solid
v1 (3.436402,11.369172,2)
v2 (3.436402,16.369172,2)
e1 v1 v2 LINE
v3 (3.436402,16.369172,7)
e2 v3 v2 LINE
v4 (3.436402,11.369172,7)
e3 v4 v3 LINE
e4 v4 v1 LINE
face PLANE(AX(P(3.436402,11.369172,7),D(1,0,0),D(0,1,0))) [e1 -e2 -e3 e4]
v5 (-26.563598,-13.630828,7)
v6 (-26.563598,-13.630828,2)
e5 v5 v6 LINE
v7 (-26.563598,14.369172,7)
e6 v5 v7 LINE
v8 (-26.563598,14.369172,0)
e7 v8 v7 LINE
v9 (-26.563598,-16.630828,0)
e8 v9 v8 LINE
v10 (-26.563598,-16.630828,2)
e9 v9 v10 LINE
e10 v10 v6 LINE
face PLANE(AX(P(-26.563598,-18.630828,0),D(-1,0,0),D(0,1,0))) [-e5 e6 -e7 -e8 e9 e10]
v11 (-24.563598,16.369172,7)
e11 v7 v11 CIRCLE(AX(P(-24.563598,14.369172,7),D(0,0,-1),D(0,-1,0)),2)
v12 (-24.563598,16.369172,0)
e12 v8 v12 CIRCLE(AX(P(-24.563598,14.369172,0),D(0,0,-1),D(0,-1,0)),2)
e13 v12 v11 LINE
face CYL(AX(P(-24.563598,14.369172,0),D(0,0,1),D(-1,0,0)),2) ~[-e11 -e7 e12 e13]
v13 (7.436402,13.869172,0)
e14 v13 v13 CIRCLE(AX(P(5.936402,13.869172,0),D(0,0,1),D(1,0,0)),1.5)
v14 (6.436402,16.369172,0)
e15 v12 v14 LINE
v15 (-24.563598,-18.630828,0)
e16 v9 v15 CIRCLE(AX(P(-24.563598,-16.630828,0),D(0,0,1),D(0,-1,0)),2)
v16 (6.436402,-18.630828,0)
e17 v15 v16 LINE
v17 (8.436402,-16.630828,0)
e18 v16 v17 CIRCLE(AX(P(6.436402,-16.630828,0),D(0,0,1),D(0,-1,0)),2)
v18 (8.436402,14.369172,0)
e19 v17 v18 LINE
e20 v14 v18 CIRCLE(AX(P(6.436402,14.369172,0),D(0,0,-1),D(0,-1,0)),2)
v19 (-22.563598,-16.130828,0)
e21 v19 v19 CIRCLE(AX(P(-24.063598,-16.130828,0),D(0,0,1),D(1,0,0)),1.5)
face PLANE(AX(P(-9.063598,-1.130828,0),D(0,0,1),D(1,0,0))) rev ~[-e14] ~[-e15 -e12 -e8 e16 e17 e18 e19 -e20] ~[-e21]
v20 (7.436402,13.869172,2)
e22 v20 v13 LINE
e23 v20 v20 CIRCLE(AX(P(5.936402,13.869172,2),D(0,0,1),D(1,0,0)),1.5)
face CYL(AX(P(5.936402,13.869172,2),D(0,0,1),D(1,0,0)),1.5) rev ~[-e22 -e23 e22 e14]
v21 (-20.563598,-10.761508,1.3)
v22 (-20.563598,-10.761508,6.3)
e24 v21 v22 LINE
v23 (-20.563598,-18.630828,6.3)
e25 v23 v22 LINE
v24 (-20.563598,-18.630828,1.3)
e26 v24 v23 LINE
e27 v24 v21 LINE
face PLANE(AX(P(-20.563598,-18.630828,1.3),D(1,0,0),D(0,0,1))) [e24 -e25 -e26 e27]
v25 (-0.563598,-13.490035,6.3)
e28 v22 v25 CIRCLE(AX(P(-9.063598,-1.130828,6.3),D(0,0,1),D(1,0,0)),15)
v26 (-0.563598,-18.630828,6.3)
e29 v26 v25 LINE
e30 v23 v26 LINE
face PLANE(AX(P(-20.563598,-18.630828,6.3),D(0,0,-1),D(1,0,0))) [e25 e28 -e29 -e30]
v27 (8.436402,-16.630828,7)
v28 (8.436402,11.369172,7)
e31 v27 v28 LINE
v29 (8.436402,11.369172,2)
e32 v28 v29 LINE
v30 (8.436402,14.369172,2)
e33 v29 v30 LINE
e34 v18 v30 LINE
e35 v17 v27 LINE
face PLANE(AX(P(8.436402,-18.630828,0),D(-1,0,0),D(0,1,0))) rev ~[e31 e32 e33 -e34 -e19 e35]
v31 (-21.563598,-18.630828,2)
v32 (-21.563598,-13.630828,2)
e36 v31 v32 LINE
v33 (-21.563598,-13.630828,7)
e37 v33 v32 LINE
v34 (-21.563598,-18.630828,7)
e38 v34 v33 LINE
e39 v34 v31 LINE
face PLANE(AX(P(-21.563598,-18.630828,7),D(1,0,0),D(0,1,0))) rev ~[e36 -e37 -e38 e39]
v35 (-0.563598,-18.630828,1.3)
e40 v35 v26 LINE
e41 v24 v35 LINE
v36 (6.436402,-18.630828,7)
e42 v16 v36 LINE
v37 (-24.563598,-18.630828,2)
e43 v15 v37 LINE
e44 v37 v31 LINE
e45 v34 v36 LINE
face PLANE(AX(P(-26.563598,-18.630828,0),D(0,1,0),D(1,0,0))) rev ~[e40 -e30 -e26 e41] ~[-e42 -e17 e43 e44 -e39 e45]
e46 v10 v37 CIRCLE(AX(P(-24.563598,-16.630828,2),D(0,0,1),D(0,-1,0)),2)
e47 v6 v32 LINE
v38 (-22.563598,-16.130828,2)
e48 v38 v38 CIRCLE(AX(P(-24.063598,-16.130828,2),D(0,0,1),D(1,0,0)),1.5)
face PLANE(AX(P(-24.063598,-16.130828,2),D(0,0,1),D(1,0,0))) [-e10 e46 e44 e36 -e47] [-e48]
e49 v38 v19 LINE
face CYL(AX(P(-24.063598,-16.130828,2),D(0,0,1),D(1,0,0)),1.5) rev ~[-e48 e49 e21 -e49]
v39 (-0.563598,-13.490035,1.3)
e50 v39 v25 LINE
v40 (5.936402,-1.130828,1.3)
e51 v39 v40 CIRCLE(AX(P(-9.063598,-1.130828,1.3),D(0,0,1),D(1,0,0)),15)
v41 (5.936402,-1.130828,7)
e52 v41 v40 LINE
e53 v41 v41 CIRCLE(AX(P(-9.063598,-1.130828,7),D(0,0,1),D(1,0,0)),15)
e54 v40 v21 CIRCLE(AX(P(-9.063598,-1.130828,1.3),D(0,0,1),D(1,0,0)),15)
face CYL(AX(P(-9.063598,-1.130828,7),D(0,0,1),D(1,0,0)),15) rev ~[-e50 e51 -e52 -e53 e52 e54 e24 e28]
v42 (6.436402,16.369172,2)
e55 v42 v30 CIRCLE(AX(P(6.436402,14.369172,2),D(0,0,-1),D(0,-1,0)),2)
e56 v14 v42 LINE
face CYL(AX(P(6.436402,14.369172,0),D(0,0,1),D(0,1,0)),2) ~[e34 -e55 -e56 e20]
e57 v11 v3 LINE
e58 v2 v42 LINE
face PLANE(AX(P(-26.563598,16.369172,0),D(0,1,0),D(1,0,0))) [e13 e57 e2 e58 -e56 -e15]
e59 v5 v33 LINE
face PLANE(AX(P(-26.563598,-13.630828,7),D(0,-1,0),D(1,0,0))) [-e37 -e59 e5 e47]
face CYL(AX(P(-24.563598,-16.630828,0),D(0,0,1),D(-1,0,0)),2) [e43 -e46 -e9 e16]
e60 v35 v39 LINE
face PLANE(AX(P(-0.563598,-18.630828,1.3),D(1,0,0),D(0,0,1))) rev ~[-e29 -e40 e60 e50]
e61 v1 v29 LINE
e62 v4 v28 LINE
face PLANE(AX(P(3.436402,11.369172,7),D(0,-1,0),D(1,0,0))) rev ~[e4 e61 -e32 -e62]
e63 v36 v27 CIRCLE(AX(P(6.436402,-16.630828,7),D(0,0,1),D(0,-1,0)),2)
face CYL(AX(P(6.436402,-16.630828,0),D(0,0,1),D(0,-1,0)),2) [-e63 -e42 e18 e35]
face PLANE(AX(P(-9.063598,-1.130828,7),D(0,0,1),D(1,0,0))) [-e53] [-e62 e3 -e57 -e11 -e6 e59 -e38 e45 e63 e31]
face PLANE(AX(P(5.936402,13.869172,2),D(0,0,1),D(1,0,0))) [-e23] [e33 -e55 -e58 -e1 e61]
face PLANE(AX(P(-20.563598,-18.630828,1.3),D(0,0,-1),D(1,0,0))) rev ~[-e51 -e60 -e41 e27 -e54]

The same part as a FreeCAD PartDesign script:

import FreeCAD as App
import Part
import Sketcher


def edges_at(feature, points):
    """Names of the edges that pass closest to the given points."""
    edges = feature.Shape.Edges
    near = lambda p: min(range(len(edges)), key=lambda i: edges[i].distToShape(Part.Vertex(*p))[0])
    return sorted({f"Edge{near(p) + 1}" for p in points})


def add_polygon(sketch, points):
    """Adds a closed chain of lines whose ends are joined by coincident constraints."""
    first, n = sketch.GeometryCount, len(points)
    for a, b in zip(points, points[1:] + points[:1]):
        sketch.addGeometry(Part.LineSegment(App.Vector(*a, 0), App.Vector(*b, 0)), False)
    for i in range(n):
        sketch.addConstraint(Sketcher.Constraint("Coincident", first + i, 2, first + (i + 1) % n, 1))

doc = App.newDocument("Part")
body = doc.addObject("PartDesign::Body", "Body")

sketch1 = body.newObject("Sketcher::SketchObject", "Sketch")
sketch1.AttachmentSupport = (doc.getObject("XY_Plane"), [""])
sketch1.MapMode = "FlatFace"
add_polygon(sketch1, [(-26.563598, 16.369172), (-26.563598, -18.630828), (8.436402, -18.630828), (8.436402, 16.369172)])
sketch1.addConstraint(Sketcher.Constraint("Vertical", 0))
sketch1.addConstraint(Sketcher.Constraint("Horizontal", 1))
sketch1.addConstraint(Sketcher.Constraint("Vertical", 2))
sketch1.addConstraint(Sketcher.Constraint("Horizontal", 3))
sketch1.addConstraint(Sketcher.Constraint("Equal", 3, 0))
sketch1.addConstraint(Sketcher.Constraint("DistanceX", 1, 1, 1, 2, 35.0))
sketch1.addConstraint(Sketcher.Constraint("DistanceX", -1, 1, 1, 2, 8.436402))
sketch1.addConstraint(Sketcher.Constraint("DistanceY", 0, 2, -1, 1, 18.630828))
pad1 = body.newObject("PartDesign::Pad", "Pad")
pad1.Profile = sketch1
pad1.Length = 7

sketch2 = body.newObject("Sketcher::SketchObject", "Sketch001")
sketch2.AttachmentSupport = (doc.getObject("XY_Plane"), [""])
sketch2.MapMode = "FlatFace"
sketch2.AttachmentOffset = App.Placement(App.Vector(0, 0, 7), App.Rotation())
add_polygon(sketch2, [(-26.563598, -13.630828), (-26.563598, -18.630828), (-21.563598, -18.630828), (-21.563598, -13.630828)])
add_polygon(sketch2, [(3.436402, 16.369172), (3.436402, 11.369172), (8.436402, 11.369172), (8.436402, 16.369172)])
sketch2.addConstraint(Sketcher.Constraint("Vertical", 0))
sketch2.addConstraint(Sketcher.Constraint("Horizontal", 1))
sketch2.addConstraint(Sketcher.Constraint("Vertical", 2))
sketch2.addConstraint(Sketcher.Constraint("Horizontal", 3))
sketch2.addConstraint(Sketcher.Constraint("Vertical", 4))
sketch2.addConstraint(Sketcher.Constraint("Horizontal", 5))
sketch2.addConstraint(Sketcher.Constraint("Vertical", 6))
sketch2.addConstraint(Sketcher.Constraint("Horizontal", 7))
sketch2.addConstraint(Sketcher.Constraint("Equal", 3, 5))
sketch2.addConstraint(Sketcher.Constraint("Equal", 7, 0))
sketch2.addConstraint(Sketcher.Constraint("Equal", 2, 4))
sketch2.addConstraint(Sketcher.Constraint("DistanceX", 1, 1, 1, 2, 5.0))
sketch2.addConstraint(Sketcher.Constraint("DistanceX", 2, 2, 4, 2, 25.0))
sketch2.addConstraint(Sketcher.Constraint("DistanceY", 2, 2, 4, 2, 25.0))
sketch2.addConstraint(Sketcher.Constraint("DistanceX", -1, 1, 5, 2, 8.436402))
sketch2.addConstraint(Sketcher.Constraint("DistanceY", 0, 2, -1, 1, 18.630828))
pocket1 = body.newObject("PartDesign::Pocket", "Pocket")
pocket1.Profile = sketch2
pocket1.Length = 5

sketch3 = body.newObject("Sketcher::SketchObject", "Sketch002")
sketch3.AttachmentSupport = (doc.getObject("XY_Plane"), [""])
sketch3.MapMode = "FlatFace"
sketch3.AttachmentOffset = App.Placement(App.Vector(0, 0, 7), App.Rotation())
sketch3.addGeometry(Part.Circle(App.Vector(-9.063598, -1.130828, 0), App.Vector(0, 0, 1), 15), False)
sketch3.addConstraint(Sketcher.Constraint("Diameter", 0, 30.0))
sketch3.addConstraint(Sketcher.Constraint("DistanceX", 0, 3, -1, 1, 9.063598))
sketch3.addConstraint(Sketcher.Constraint("DistanceY", 0, 3, -1, 1, 1.130828))
pocket2 = body.newObject("PartDesign::Pocket", "Pocket001")
pocket2.Profile = sketch3
pocket2.Length = 5.7

sketch4 = body.newObject("Sketcher::SketchObject", "Sketch003")
sketch4.AttachmentSupport = (doc.getObject("XY_Plane"), [""])
sketch4.MapMode = "FlatFace"
sketch4.AttachmentOffset = App.Placement(App.Vector(0, 0, 2), App.Rotation())
sketch4.addGeometry(Part.Circle(App.Vector(-24.063598, -16.130828, 0), App.Vector(0, 0, 1), 1.5), False)
sketch4.addGeometry(Part.Circle(App.Vector(5.936402, 13.869172, 0), App.Vector(0, 0, 1), 1.5), False)
sketch4.addConstraint(Sketcher.Constraint("Equal", 0, 1))
sketch4.addConstraint(Sketcher.Constraint("Diameter", 0, 3.0))
sketch4.addConstraint(Sketcher.Constraint("DistanceX", 0, 3, 1, 3, 30.0))
sketch4.addConstraint(Sketcher.Constraint("DistanceY", 0, 3, 1, 3, 30.0))
sketch4.addConstraint(Sketcher.Constraint("DistanceY", 0, 3, -1, 1, 16.130828))
sketch4.addConstraint(Sketcher.Constraint("DistanceX", 0, 3, -1, 1, 24.063598))
pocket3 = body.newObject("PartDesign::Pocket", "Pocket002")
pocket3.Profile = sketch4
pocket3.Length = 25

sketch5 = body.newObject("Sketcher::SketchObject", "Sketch004")
sketch5.AttachmentSupport = (doc.getObject("XZ_Plane"), [""])
sketch5.MapMode = "FlatFace"
sketch5.AttachmentOffset = App.Placement(App.Vector(0, 0, 18.630828), App.Rotation())
add_polygon(sketch5, [(-20.563598, 6.3), (-20.563598, 1.3), (-0.563598, 1.3), (-0.563598, 6.3)])
sketch5.addConstraint(Sketcher.Constraint("Vertical", 0))
sketch5.addConstraint(Sketcher.Constraint("Horizontal", 1))
sketch5.addConstraint(Sketcher.Constraint("Vertical", 2))
sketch5.addConstraint(Sketcher.Constraint("Horizontal", 3))
sketch5.addConstraint(Sketcher.Constraint("DistanceX", 1, 1, 1, 2, 20.0))
sketch5.addConstraint(Sketcher.Constraint("DistanceY", 0, 2, 0, 1, 5.0))
sketch5.addConstraint(Sketcher.Constraint("DistanceY", -1, 1, 0, 2, 1.3))
sketch5.addConstraint(Sketcher.Constraint("DistanceX", 1, 2, -1, 1, 0.563598))
pocket4 = body.newObject("PartDesign::Pocket", "Pocket003")
pocket4.Profile = sketch5
pocket4.Length = 10
doc.recompute()

fillet = body.newObject("PartDesign::Fillet", "Fillet")
fillet.Base = (pocket4, edges_at(pocket4, [
    (8.436, -18.631, 3.5),
    (-26.564, -18.631, 1),
    (8.436, 16.369, 1),
    (-26.564, 16.369, 3.5),
]))
fillet.Radius = 2

doc.recompute()
